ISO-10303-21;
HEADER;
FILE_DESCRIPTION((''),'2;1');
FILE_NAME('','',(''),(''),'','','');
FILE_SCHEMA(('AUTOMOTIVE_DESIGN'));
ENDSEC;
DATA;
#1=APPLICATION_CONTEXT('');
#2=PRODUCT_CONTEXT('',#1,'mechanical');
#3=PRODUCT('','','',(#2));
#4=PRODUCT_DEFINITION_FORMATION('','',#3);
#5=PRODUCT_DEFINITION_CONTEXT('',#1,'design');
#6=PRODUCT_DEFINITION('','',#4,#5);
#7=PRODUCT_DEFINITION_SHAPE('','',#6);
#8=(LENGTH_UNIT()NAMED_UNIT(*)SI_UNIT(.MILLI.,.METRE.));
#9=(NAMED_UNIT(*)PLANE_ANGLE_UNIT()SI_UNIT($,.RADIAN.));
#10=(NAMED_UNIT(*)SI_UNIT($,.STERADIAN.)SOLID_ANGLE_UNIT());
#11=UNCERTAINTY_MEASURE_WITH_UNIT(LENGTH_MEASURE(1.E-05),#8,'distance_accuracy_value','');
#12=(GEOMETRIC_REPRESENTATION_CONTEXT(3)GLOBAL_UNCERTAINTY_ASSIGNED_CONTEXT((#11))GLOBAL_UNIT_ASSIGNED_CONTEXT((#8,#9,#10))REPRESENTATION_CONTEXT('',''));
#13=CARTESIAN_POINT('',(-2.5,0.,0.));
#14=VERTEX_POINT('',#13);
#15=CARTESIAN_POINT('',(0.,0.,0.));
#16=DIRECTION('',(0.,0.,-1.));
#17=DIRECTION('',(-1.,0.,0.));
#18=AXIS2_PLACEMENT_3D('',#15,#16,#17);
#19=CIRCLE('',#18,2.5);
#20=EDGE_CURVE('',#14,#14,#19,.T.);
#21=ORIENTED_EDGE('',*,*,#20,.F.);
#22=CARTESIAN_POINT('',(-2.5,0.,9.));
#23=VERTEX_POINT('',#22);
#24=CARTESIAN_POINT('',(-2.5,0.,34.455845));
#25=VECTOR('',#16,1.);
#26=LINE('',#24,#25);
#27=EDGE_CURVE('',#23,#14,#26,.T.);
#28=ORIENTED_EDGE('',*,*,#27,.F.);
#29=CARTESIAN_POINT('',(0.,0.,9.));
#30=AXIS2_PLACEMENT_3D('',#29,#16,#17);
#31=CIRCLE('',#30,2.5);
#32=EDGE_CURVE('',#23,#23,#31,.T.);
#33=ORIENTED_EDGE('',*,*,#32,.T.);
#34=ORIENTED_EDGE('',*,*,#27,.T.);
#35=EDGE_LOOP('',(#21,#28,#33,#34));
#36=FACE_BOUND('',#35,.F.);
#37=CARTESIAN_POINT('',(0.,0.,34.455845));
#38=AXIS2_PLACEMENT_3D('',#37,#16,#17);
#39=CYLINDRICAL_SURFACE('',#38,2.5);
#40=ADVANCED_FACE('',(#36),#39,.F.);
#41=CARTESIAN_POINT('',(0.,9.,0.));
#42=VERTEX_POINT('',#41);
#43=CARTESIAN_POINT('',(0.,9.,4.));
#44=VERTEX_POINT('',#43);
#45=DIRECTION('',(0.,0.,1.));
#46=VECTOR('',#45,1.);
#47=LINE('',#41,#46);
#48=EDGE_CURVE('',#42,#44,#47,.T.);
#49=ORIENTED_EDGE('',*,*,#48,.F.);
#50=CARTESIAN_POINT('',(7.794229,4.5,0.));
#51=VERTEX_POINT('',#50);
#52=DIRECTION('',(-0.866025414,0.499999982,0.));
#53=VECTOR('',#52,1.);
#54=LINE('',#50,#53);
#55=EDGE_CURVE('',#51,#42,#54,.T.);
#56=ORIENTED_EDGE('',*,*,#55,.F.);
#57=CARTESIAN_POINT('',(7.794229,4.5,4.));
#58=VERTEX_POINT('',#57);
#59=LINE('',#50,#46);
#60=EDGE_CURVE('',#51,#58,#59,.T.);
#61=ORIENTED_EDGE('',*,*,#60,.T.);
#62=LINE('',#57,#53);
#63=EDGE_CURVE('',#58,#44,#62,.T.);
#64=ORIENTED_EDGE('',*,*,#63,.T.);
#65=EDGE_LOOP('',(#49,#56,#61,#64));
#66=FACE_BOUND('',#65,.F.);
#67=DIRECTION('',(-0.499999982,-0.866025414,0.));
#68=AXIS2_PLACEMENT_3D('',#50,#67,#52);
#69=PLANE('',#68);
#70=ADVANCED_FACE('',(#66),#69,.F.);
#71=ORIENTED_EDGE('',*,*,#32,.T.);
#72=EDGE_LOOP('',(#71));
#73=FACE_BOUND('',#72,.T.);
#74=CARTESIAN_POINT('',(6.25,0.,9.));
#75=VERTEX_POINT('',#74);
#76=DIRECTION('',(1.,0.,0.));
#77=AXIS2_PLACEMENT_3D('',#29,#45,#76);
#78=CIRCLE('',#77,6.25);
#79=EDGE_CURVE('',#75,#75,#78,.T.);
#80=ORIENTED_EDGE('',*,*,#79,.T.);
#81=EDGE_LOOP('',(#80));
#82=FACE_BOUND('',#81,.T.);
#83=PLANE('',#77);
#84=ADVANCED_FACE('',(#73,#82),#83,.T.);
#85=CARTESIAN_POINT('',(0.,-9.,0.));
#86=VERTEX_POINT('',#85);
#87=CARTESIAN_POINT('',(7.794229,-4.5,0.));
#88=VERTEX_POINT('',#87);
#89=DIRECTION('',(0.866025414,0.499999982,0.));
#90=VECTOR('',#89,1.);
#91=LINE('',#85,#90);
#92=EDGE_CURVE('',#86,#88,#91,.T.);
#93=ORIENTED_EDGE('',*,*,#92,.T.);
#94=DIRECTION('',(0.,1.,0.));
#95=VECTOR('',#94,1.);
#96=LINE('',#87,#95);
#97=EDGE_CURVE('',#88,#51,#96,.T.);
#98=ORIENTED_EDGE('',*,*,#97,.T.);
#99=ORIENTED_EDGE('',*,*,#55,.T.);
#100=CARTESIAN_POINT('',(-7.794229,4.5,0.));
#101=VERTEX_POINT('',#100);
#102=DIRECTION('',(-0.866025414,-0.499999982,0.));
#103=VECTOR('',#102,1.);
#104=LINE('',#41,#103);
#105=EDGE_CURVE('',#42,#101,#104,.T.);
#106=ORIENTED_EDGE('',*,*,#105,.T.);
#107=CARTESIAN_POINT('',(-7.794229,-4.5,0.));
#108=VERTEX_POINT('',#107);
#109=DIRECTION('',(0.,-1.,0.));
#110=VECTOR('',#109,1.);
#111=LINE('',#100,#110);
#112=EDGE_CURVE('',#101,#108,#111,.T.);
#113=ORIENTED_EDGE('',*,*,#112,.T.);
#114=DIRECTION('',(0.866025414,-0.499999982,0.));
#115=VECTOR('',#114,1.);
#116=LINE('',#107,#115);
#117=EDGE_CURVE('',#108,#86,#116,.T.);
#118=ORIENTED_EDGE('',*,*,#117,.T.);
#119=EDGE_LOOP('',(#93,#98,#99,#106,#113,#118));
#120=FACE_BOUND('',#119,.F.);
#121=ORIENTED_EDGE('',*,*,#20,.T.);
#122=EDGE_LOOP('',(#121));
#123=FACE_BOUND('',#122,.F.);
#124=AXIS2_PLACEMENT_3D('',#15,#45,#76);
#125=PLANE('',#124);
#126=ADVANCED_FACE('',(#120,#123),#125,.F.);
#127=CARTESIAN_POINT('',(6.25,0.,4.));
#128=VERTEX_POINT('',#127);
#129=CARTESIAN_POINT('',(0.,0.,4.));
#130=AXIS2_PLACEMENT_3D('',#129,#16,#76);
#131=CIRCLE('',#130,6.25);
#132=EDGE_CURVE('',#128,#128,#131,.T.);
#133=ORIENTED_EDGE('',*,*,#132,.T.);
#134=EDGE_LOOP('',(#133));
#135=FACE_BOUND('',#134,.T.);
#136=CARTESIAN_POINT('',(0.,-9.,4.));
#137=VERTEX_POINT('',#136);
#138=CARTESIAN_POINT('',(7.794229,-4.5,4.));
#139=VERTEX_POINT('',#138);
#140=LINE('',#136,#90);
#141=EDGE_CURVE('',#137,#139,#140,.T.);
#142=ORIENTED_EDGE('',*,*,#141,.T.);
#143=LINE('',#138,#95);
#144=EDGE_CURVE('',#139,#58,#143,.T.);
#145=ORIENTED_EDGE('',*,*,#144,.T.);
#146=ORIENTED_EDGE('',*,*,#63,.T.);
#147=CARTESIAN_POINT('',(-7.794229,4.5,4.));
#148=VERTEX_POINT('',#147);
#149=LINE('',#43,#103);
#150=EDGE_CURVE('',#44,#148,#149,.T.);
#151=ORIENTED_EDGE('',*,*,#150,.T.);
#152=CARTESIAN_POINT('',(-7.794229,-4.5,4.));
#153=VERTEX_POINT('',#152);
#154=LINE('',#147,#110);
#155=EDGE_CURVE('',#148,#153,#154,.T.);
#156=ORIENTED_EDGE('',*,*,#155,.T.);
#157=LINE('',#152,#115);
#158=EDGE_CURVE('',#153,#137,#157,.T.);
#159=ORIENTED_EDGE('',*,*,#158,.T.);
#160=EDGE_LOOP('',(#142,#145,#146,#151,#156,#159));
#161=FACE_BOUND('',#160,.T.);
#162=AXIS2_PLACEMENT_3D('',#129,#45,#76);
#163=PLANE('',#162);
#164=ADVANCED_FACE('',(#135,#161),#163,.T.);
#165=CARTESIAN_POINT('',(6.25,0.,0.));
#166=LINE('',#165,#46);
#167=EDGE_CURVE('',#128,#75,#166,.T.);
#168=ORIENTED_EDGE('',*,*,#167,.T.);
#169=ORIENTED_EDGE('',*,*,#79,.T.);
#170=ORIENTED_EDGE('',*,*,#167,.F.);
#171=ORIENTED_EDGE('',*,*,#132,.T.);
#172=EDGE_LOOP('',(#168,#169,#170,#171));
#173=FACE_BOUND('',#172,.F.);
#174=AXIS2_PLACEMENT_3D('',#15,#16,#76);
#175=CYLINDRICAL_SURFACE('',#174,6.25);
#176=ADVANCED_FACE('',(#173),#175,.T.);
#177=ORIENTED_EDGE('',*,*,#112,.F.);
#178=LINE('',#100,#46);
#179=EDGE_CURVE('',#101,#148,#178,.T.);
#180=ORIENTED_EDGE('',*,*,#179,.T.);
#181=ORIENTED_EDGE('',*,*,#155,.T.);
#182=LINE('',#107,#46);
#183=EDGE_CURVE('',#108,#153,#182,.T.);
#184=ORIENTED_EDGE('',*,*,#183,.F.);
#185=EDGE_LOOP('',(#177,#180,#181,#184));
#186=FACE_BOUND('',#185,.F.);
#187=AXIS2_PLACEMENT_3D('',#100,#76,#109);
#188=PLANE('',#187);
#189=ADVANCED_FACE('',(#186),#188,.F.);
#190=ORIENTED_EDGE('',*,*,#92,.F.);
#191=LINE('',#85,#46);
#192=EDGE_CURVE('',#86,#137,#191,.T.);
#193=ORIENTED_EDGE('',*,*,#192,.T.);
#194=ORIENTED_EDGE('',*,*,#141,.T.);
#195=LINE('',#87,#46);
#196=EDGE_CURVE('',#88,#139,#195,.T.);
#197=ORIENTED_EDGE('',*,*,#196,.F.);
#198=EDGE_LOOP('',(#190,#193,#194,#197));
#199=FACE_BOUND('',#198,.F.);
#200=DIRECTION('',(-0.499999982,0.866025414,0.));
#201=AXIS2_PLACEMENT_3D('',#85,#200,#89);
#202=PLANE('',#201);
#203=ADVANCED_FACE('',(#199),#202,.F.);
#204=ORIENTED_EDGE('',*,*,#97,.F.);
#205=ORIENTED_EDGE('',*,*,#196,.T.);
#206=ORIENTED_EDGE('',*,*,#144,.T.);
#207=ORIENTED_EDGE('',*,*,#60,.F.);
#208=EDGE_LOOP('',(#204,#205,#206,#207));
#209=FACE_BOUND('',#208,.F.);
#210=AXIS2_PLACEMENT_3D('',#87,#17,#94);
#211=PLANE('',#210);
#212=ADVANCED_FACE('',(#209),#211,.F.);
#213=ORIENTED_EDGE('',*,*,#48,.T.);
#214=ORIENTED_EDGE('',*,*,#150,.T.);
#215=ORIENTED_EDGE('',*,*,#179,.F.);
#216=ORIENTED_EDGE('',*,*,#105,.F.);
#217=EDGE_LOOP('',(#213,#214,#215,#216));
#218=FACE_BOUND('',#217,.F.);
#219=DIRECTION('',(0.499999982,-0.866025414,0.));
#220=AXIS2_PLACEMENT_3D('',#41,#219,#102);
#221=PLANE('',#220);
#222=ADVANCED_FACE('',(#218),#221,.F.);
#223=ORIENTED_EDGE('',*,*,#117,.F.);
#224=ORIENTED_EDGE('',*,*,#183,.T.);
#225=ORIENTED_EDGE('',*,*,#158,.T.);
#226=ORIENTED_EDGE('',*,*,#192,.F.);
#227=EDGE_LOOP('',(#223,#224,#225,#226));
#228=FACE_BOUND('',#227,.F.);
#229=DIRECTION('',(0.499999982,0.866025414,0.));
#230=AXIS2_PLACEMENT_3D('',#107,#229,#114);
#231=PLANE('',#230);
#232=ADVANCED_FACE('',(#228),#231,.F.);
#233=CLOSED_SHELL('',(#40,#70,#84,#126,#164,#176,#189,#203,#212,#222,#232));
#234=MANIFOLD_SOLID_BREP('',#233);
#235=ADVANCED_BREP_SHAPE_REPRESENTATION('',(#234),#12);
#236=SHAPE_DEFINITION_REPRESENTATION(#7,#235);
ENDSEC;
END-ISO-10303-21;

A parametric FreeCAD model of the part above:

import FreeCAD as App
import Part
import Sketcher
Q = App.Units.Quantity

doc = App.newDocument("Part")
body = doc.addObject("PartDesign::Body", "Body")

sketch1 = body.newObject("Sketcher::SketchObject", "Sketch")
sketch1.AttachmentSupport = (doc.getObject("XY_Plane"), [""])
sketch1.MapMode = "FlatFace"
sketch1.addGeometry([
    Part.LineSegment(App.Vector(-7.794229, 4.5, 0), App.Vector(-7.794229, -4.5, 0)),
    Part.LineSegment(App.Vector(-7.794229, -4.5, 0), App.Vector(0, -9, 0)),
    Part.LineSegment(App.Vector(0, -9, 0), App.Vector(7.794229, -4.5, 0)),
    Part.LineSegment(App.Vector(7.794229, -4.5, 0), App.Vector(7.794229, 4.5, 0)),
    Part.LineSegment(App.Vector(7.794229, 4.5, 0), App.Vector(0, 9, 0)),
    Part.LineSegment(App.Vector(0, 9, 0), App.Vector(-7.794229, 4.5, 0)),
], False)
sketch1.addConstraint([
    Sketcher.Constraint("Coincident", 0, 2, 1, 1),
    Sketcher.Constraint("Coincident", 1, 2, 2, 1),
    Sketcher.Constraint("Coincident", 2, 2, 3, 1),
    Sketcher.Constraint("Coincident", 3, 2, 4, 1),
    Sketcher.Constraint("Coincident", 4, 2, 5, 1),
    Sketcher.Constraint("Coincident", 5, 2, 0, 1),
    Sketcher.Constraint("Vertical", 0),
    Sketcher.Constraint("Vertical", 3),
    Sketcher.Constraint("Symmetric", 0, 2, 3, 2, -1, 1),
    Sketcher.Constraint("Symmetric", 1, 2, 4, 2, -1, 1),
    Sketcher.Constraint("PointOnObject", 1, 2, -2),
    Sketcher.Constraint("Parallel", 2, 5),
    Sketcher.Constraint("Horizontal", 0, 2, 2, 2),
    Sketcher.Constraint("DistanceY", 0, 2, 0, 1, 9.0),
    Sketcher.Constraint("Angle", 1, Q("-29.999999 deg")),
    Sketcher.Constraint("Distance", 1, 9.0),
])
pad1 = body.newObject("PartDesign::Pad", "Pad")
pad1.Profile = sketch1
pad1.Length = 4

sketch2 = body.newObject("Sketcher::SketchObject", "Sketch001")
sketch2.AttachmentSupport = (doc.getObject("XY_Plane"), [""])
sketch2.MapMode = "FlatFace"
sketch2.addGeometry(Part.Circle(App.Vector(0, 0, 0), App.Vector(0, 0, 1), 6.25), False)
sketch2.addConstraint([
    Sketcher.Constraint("Coincident", 0, 3, -1, 1),
    Sketcher.Constraint("Diameter", 0, 12.5),
])
pad2 = body.newObject("PartDesign::Pad", "Pad001")
pad2.Profile = sketch2
pad2.Length = 9

sketch3 = body.newObject("Sketcher::SketchObject", "Sketch002")
sketch3.AttachmentSupport = (doc.getObject("XY_Plane"), [""])
sketch3.MapMode = "FlatFace"
sketch3.AttachmentOffset = App.Placement(App.Vector(0, 0, 9), App.Rotation())
sketch3.addGeometry(Part.Circle(App.Vector(0, 0, 0), App.Vector(0, 0, 1), 2.5), False)
sketch3.addConstraint([
    Sketcher.Constraint("Coincident", 0, 3, -1, 1),
    Sketcher.Constraint("Diameter", 0, 5.0),
])
doc.recompute()
hole = body.newObject("PartDesign::Hole", "Hole")
hole.Profile = sketch3
hole.ThreadType = "None"
hole.Diameter = 5
hole.DepthType = "ThroughAll"

doc.recompute()
